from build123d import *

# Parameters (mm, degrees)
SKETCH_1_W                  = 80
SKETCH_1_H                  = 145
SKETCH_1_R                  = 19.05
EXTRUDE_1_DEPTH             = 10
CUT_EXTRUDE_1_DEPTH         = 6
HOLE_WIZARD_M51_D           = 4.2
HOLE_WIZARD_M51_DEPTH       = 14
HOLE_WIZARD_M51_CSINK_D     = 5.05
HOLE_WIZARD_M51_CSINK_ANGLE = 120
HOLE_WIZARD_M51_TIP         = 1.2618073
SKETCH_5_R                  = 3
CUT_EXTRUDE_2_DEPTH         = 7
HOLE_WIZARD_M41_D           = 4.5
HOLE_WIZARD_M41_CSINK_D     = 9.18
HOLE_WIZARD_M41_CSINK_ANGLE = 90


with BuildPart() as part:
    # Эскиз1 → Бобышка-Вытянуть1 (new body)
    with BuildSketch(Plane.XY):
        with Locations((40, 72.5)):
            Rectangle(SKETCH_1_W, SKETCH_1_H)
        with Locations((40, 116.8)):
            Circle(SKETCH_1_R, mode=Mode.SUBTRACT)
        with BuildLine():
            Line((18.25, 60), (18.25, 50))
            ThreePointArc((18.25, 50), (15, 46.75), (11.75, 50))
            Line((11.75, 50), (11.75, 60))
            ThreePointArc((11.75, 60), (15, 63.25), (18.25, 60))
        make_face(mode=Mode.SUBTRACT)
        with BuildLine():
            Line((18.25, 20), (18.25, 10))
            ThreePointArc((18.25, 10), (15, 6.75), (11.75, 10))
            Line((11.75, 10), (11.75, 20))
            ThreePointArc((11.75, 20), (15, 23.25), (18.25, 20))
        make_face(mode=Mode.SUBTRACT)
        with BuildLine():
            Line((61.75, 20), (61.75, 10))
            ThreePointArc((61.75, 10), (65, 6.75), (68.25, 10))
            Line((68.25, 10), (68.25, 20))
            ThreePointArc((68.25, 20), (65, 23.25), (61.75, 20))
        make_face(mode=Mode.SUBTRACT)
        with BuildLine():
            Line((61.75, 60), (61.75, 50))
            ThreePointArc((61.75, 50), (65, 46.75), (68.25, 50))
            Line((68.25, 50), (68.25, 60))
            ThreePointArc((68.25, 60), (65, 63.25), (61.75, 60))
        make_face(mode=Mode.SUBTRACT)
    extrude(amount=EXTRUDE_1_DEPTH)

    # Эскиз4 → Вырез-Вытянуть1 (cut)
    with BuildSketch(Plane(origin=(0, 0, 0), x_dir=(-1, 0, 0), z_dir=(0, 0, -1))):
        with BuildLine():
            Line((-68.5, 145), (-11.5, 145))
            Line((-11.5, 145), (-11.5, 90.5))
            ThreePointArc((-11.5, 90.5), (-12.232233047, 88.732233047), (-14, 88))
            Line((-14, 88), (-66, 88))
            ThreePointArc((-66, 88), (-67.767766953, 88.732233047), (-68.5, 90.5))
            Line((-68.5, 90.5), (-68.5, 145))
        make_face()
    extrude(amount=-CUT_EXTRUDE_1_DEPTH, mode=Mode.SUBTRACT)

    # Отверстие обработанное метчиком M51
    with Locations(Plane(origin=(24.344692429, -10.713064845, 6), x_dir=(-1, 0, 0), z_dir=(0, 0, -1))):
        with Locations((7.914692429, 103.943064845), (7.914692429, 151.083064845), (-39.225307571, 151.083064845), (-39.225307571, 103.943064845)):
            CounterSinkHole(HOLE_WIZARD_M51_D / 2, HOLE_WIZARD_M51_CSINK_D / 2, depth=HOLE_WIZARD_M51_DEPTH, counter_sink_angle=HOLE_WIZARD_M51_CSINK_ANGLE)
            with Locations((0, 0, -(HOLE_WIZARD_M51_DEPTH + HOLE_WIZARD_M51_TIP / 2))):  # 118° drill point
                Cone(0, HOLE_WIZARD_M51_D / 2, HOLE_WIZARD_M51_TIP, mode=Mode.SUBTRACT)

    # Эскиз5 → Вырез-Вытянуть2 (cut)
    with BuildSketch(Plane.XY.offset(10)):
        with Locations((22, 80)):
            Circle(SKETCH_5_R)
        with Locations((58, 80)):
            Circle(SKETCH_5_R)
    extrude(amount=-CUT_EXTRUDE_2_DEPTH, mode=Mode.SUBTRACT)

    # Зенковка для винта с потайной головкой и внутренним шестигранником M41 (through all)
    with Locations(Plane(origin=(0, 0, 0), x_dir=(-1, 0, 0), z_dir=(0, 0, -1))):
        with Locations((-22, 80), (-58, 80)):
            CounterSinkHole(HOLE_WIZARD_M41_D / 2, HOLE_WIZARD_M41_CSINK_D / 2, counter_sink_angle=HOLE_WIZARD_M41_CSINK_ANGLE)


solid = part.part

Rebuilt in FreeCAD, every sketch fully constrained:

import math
import FreeCAD as App
import Part
import Sketcher

V = App.Vector


def add_polygon(sketch, points):
    """Adds a closed chain of lines whose ends are joined by coincident constraints."""
    first, n = sketch.GeometryCount, len(points)
    for a, b in zip(points, points[1:] + points[:1]):
        sketch.addGeometry(Part.LineSegment(App.Vector(*a, 0), App.Vector(*b, 0)), False)
    for i in range(n):
        sketch.addConstraint(Sketcher.Constraint("Coincident", first + i, 2, first + (i + 1) % n, 1))

doc = App.newDocument("Part")
body = doc.addObject("PartDesign::Body", "Body")

# Sketch on XY plane
sketch1 = doc.addObject("Sketcher::SketchObject", "Sketch")
body.addObject(sketch1)
sketch1.AttachmentSupport = (doc.XY_Plane, [""])
sketch1.MapMode = "FlatFace"
add_polygon(sketch1, [(0, 145), (0, 0), (80, 0), (80, 145)])  # lines 0-3
sketch1.addGeometry(Part.ArcOfCircle(Part.Circle(V(15, 20, 0), V(0, 0, 1), 3.25), math.radians(0), math.radians(180)), False)  # 4
sketch1.addGeometry(Part.LineSegment(V(18.25, 20, 0), V(18.25, 10, 0)), False)  # 5
sketch1.addGeometry(Part.ArcOfCircle(Part.Circle(V(15, 10, 0), V(0, 0, 1), 3.25), math.radians(180), math.radians(360)), False)  # 6
sketch1.addGeometry(Part.LineSegment(V(11.75, 10, 0), V(11.75, 20, 0)), False)  # 7
sketch1.addGeometry(Part.ArcOfCircle(Part.Circle(V(15, 60, 0), V(0, 0, 1), 3.25), math.radians(0), math.radians(180)), False)  # 8
sketch1.addGeometry(Part.LineSegment(V(18.25, 60, 0), V(18.25, 50, 0)), False)  # 9
sketch1.addGeometry(Part.ArcOfCircle(Part.Circle(V(15, 50, 0), V(0, 0, 1), 3.25), math.radians(180), math.radians(360)), False)  # 10
sketch1.addGeometry(Part.LineSegment(V(11.75, 50, 0), V(11.75, 60, 0)), False)  # 11
sketch1.addGeometry(Part.LineSegment(V(61.75, 10, 0), V(61.75, 20, 0)), False)  # 12
sketch1.addGeometry(Part.ArcOfCircle(Part.Circle(V(65, 20, 0), V(0, 0, 1), 3.25), math.radians(0), math.radians(180)), False)  # 13
sketch1.addGeometry(Part.LineSegment(V(68.25, 20, 0), V(68.25, 10, 0)), False)  # 14
sketch1.addGeometry(Part.ArcOfCircle(Part.Circle(V(65, 10, 0), V(0, 0, 1), 3.25), math.radians(180), math.radians(360)), False)  # 15
sketch1.addGeometry(Part.LineSegment(V(61.75, 50, 0), V(61.75, 60, 0)), False)  # 16
sketch1.addGeometry(Part.ArcOfCircle(Part.Circle(V(65, 60, 0), V(0, 0, 1), 3.25), math.radians(0), math.radians(180)), False)  # 17
sketch1.addGeometry(Part.LineSegment(V(68.25, 60, 0), V(68.25, 50, 0)), False)  # 18
sketch1.addGeometry(Part.ArcOfCircle(Part.Circle(V(65, 50, 0), V(0, 0, 1), 3.25), math.radians(180), math.radians(360)), False)  # 19
sketch1.addGeometry(Part.Circle(V(40, 116.8, 0), V(0, 0, 1), 19.05), False)  # 20
sketch1.addConstraint([
    Sketcher.Constraint("Tangent", 4, 1, 5, 1),
    Sketcher.Constraint("Tangent", 5, 2, 6, 2),
    Sketcher.Constraint("Tangent", 6, 1, 7, 1),
    Sketcher.Constraint("Tangent", 7, 2, 4, 2),
    Sketcher.Constraint("Tangent", 8, 1, 9, 1),
    Sketcher.Constraint("Tangent", 9, 2, 10, 2),
    Sketcher.Constraint("Tangent", 10, 1, 11, 1),
    Sketcher.Constraint("Tangent", 11, 2, 8, 2),
    Sketcher.Constraint("Tangent", 12, 2, 13, 2),
    Sketcher.Constraint("Tangent", 13, 1, 14, 1),
    Sketcher.Constraint("Tangent", 14, 2, 15, 2),
    Sketcher.Constraint("Tangent", 15, 1, 12, 1),
    Sketcher.Constraint("Tangent", 16, 2, 17, 2),
    Sketcher.Constraint("Tangent", 17, 1, 18, 1),
    Sketcher.Constraint("Tangent", 18, 2, 19, 2),
    Sketcher.Constraint("Tangent", 19, 1, 16, 1),
    Sketcher.Constraint("Vertical", 0),
    Sketcher.Constraint("Horizontal", 1),
    Sketcher.Constraint("Vertical", 2),
    Sketcher.Constraint("Horizontal", 3),
    Sketcher.Constraint("Vertical", 5),
    Sketcher.Constraint("Vertical", 7),
    Sketcher.Constraint("Vertical", 9),
    Sketcher.Constraint("Vertical", 11),
    Sketcher.Constraint("Vertical", 12),
    Sketcher.Constraint("Vertical", 14),
    Sketcher.Constraint("Vertical", 16),
    Sketcher.Constraint("Vertical", 18),
    Sketcher.Constraint("Coincident", 0, 2, -1, 1),
    Sketcher.Constraint("Equal", 6, 8),
    Sketcher.Constraint("Equal", 10, 13),
    Sketcher.Constraint("Equal", 15, 17),
    Sketcher.Constraint("Horizontal", 4, 3, 13, 3),
    Sketcher.Constraint("Horizontal", 6, 3, 15, 3),
    Sketcher.Constraint("Horizontal", 8, 3, 17, 3),
    Sketcher.Constraint("Horizontal", 10, 3, 19, 3),
    Sketcher.Constraint("Vertical", 6, 3, 8, 3),
    Sketcher.Constraint("Vertical", 15, 3, 17, 3),
    Sketcher.Constraint("Equal", 7, 9),
    Sketcher.Constraint("Diameter", 20, 38.1),
    Sketcher.Constraint("DistanceX", 1, 1, 1, 2, 80.0),
    Sketcher.Constraint("DistanceY", 0, 2, 0, 1, 145.0),
    Sketcher.Constraint("DistanceY", 5, 2, 5, 1, 10.0),
    Sketcher.Constraint("Radius", 4, 3.25),
    Sketcher.Constraint("DistanceX", -1, 1, 4, 3, 15.0),
    Sketcher.Constraint("DistanceY", -1, 1, 4, 3, 20.0),
    Sketcher.Constraint("DistanceY", -1, 1, 8, 3, 60.0),
    Sketcher.Constraint("DistanceX", -1, 1, 13, 3, 65.0),
    Sketcher.Constraint("DistanceX", -1, 1, 20, 3, 40.0),
    Sketcher.Constraint("DistanceY", -1, 1, 20, 3, 116.8),
])
pad1 = doc.addObject("PartDesign::Pad", "Pad")
body.addObject(pad1)
pad1.Profile = sketch1
pad1.Length = 10

# Sketch on XY plane
sketch2 = doc.addObject("Sketcher::SketchObject", "Sketch001")
body.addObject(sketch2)
sketch2.AttachmentSupport = (doc.XY_Plane, [""])
sketch2.MapMode = "FlatFace"
sketch2.addGeometry([
    Part.LineSegment(V(11.5, 145, 0), V(68.5, 145, 0)),  # 0
    Part.LineSegment(V(68.5, 145, 0), V(68.5, 90.5, 0)),  # 1
    Part.ArcOfCircle(Part.Circle(V(66, 90.5, 0), V(0, 0, 1), 2.5), math.radians(-90), math.radians(0)),  # 2
    Part.LineSegment(V(66, 88, 0), V(14, 88, 0)),  # 3
    Part.ArcOfCircle(Part.Circle(V(14, 90.5, 0), V(0, 0, 1), 2.5), math.radians(180), math.radians(270)),  # 4
    Part.LineSegment(V(11.5, 90.5, 0), V(11.5, 145, 0)),  # 5
], False)
sketch2.addConstraint([
    Sketcher.Constraint("Coincident", 0, 2, 1, 1),
    Sketcher.Constraint("Tangent", 1, 2, 2, 2),
    Sketcher.Constraint("Tangent", 2, 1, 3, 1),
    Sketcher.Constraint("Tangent", 3, 2, 4, 2),
    Sketcher.Constraint("Tangent", 4, 1, 5, 1),
    Sketcher.Constraint("Coincident", 5, 2, 0, 1),
    Sketcher.Constraint("Horizontal", 0),
    Sketcher.Constraint("Vertical", 1),
    Sketcher.Constraint("Horizontal", 3),
    Sketcher.Constraint("Vertical", 5),
    Sketcher.Constraint("Equal", 2, 4),
    Sketcher.Constraint("Radius", 2, 2.5),
    Sketcher.Constraint("DistanceX", 0, 1, 0, 2, 57.0),
    Sketcher.Constraint("DistanceY", 1, 2, 1, 1, 54.5),
    Sketcher.Constraint("DistanceX", -1, 1, 2, 3, 66.0),
    Sketcher.Constraint("DistanceY", -1, 1, 0, 2, 145.0),
])
pocket1 = doc.addObject("PartDesign::Pocket", "Pocket")
body.addObject(pocket1)
pocket1.Profile = sketch2
pocket1.Length = 6
pocket1.Reversed = True

# Sketch on XY plane
sketch3 = doc.addObject("Sketcher::SketchObject", "Sketch002")
body.addObject(sketch3)
sketch3.AttachmentSupport = (doc.XY_Plane, [""])
sketch3.MapMode = "FlatFace"
sketch3.AttachmentOffset = App.Placement(V(0, 0, 6), App.Rotation())
sketch3.addGeometry([
    Part.Circle(V(16.43, 93.23, 0), V(0, 0, 1), 2.1),
    Part.Circle(V(16.43, 140.37, 0), V(0, 0, 1), 2.1),
    Part.Circle(V(63.57, 140.37, 0), V(0, 0, 1), 2.1),
    Part.Circle(V(63.57, 93.23, 0), V(0, 0, 1), 2.1),
], False)
sketch3.addConstraint([
    Sketcher.Constraint("Equal", 0, 1),
    Sketcher.Constraint("Equal", 1, 2),
    Sketcher.Constraint("Equal", 2, 3),
    Sketcher.Constraint("Horizontal", 1, 3, 2, 3),
    Sketcher.Constraint("Horizontal", 0, 3, 3, 3),
    Sketcher.Constraint("Vertical", 0, 3, 1, 3),
    Sketcher.Constraint("Vertical", 2, 3, 3, 3),
    Sketcher.Constraint("Diameter", 0, 4.2),
    Sketcher.Constraint("DistanceX", -1, 1, 0, 3, 16.43),
    Sketcher.Constraint("DistanceY", -1, 1, 0, 3, 93.23),
    Sketcher.Constraint("DistanceY", -1, 1, 1, 3, 140.37),
    Sketcher.Constraint("DistanceX", -1, 1, 2, 3, 63.57),
])
doc.recompute()
hole = doc.addObject("PartDesign::Hole", "Hole")
body.addObject(hole)
hole.Profile = sketch3
hole.ThreadType = "None"
hole.Diameter = 4.2
hole.DepthType = "Dimension"
hole.Depth = 14
hole.DrillPoint = "Angled"
hole.DrillPointAngle = 118
hole.HoleCutType = "Countersink"
hole.HoleCutDiameter = 5.05
hole.HoleCutCountersinkAngle = 120
hole.Reversed = True

# Sketch on XY plane
sketch4 = doc.addObject("Sketcher::SketchObject", "Sketch003")
body.addObject(sketch4)
sketch4.AttachmentSupport = (doc.XY_Plane, [""])
sketch4.MapMode = "FlatFace"
sketch4.AttachmentOffset = App.Placement(V(0, 0, 10), App.Rotation())
sketch4.addGeometry([
    Part.Circle(V(22, 80, 0), V(0, 0, 1), 3),
    Part.Circle(V(58, 80, 0), V(0, 0, 1), 3),
], False)
sketch4.addConstraint([
    Sketcher.Constraint("Equal", 0, 1),
    Sketcher.Constraint("Horizontal", 0, 3, 1, 3),
    Sketcher.Constraint("Diameter", 0, 6.0),
    Sketcher.Constraint("DistanceX", -1, 1, 0, 3, 22.0),
    Sketcher.Constraint("DistanceY", -1, 1, 0, 3, 80.0),
    Sketcher.Constraint("DistanceX", -1, 1, 1, 3, 58.0),
])
pocket2 = doc.addObject("PartDesign::Pocket", "Pocket001")
body.addObject(pocket2)
pocket2.Profile = sketch4
pocket2.Length = 7

# Sketch on XY plane
sketch5 = doc.addObject("Sketcher::SketchObject", "Sketch004")
body.addObject(sketch5)
sketch5.AttachmentSupport = (doc.XY_Plane, [""])
sketch5.MapMode = "FlatFace"
sketch5.addGeometry([
    Part.Circle(V(22, 80, 0), V(0, 0, 1), 2.25),
    Part.Circle(V(58, 80, 0), V(0, 0, 1), 2.25),
], False)
sketch5.addConstraint([
    Sketcher.Constraint("Equal", 0, 1),
    Sketcher.Constraint("Horizontal", 0, 3, 1, 3),
    Sketcher.Constraint("Diameter", 0, 4.5),
    Sketcher.Constraint("DistanceX", -1, 1, 0, 3, 22.0),
    Sketcher.Constraint("DistanceY", -1, 1, 0, 3, 80.0),
    Sketcher.Constraint("DistanceX", -1, 1, 1, 3, 58.0),
])
doc.recompute()
hole2 = doc.addObject("PartDesign::Hole", "Hole001")
body.addObject(hole2)
hole2.Profile = sketch5
hole2.ThreadType = "None"
hole2.Diameter = 4.5
hole2.DepthType = "ThroughAll"
hole2.HoleCutType = "Countersink"
hole2.HoleCutDiameter = 9.18
hole2.HoleCutCountersinkAngle = 90
hole2.Reversed = True

doc.recompute()
